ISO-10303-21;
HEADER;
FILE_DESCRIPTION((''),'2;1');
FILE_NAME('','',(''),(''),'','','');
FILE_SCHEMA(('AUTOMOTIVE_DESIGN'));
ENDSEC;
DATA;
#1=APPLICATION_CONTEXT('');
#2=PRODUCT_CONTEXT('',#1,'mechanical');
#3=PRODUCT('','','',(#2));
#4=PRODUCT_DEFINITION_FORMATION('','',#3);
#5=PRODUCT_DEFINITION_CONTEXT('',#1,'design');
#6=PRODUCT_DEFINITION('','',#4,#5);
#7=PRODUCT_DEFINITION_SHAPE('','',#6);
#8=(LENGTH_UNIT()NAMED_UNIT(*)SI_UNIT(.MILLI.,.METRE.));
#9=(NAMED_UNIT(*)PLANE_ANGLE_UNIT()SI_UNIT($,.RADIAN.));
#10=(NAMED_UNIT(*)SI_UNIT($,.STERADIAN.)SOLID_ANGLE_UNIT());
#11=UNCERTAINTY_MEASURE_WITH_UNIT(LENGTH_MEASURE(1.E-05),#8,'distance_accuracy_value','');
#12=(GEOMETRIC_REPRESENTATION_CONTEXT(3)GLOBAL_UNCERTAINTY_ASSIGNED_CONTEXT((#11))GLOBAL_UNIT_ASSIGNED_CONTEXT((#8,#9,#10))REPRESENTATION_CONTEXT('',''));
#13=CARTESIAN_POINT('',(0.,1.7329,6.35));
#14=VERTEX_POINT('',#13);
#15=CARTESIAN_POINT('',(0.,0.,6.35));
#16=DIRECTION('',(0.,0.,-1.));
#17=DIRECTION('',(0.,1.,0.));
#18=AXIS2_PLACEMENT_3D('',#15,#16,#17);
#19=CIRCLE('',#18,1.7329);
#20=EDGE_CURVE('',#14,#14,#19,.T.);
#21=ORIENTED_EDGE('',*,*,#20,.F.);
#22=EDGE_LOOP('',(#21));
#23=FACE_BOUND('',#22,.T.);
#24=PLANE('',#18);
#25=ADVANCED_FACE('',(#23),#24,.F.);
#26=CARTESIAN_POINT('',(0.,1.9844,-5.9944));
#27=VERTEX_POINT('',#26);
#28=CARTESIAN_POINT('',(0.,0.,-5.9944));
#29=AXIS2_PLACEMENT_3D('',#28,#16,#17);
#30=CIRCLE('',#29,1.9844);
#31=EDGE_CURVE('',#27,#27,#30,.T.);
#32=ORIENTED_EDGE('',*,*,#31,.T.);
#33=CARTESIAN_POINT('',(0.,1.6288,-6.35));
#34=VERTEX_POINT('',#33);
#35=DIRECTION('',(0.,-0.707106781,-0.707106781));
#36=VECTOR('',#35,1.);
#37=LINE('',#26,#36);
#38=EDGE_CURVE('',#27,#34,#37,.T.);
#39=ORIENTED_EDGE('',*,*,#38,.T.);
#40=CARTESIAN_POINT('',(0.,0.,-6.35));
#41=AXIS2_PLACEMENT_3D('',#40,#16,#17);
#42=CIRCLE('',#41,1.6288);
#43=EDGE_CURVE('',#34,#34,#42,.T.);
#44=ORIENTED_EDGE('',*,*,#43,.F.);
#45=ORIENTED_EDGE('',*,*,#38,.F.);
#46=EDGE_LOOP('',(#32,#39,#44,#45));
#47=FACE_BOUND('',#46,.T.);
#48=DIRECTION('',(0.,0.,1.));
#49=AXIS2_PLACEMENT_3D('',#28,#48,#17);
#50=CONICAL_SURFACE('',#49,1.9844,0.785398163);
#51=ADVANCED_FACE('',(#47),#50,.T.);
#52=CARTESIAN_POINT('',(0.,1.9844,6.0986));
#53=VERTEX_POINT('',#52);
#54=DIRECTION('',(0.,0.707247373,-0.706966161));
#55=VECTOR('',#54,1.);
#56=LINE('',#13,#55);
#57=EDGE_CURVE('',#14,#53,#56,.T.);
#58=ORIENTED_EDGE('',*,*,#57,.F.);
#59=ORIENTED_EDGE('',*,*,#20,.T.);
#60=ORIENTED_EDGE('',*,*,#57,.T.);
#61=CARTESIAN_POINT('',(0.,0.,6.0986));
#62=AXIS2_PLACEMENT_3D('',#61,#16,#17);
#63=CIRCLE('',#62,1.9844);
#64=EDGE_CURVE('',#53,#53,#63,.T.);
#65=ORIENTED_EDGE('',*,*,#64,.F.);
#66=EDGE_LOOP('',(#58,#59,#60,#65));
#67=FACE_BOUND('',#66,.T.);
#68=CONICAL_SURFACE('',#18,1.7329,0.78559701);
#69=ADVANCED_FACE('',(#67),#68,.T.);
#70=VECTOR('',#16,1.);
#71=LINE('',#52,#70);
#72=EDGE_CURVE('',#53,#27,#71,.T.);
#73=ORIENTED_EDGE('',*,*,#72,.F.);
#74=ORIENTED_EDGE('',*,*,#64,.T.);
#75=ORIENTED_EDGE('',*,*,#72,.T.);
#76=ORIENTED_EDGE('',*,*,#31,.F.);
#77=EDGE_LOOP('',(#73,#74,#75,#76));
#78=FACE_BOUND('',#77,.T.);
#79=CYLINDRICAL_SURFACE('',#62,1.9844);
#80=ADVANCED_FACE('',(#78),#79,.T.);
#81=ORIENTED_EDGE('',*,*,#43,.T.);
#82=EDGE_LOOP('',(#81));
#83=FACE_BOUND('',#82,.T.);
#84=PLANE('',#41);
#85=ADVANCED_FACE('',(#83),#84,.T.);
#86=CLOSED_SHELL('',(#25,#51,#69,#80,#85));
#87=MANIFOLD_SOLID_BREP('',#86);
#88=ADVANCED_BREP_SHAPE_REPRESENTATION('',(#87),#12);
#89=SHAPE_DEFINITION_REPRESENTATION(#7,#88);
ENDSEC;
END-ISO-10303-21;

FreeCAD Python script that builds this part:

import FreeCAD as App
import Part
import Sketcher
from FreeCAD import Vector
Q = App.Units.Quantity


def add_polygon(sketch, points):
    """Adds a closed chain of lines whose ends are joined by coincident constraints."""
    first, n = sketch.GeometryCount, len(points)
    for a, b in zip(points, points[1:] + points[:1]):
        sketch.addGeometry(Part.LineSegment(App.Vector(*a, 0), App.Vector(*b, 0)), False)
    for i in range(n):
        sketch.addConstraint(Sketcher.Constraint("Coincident", first + i, 2, first + (i + 1) % n, 1))

doc = App.newDocument("Part")
body = doc.addObject("PartDesign::Body", "Body")

# Sketch on YZ plane
sketch1 = body.newObject("Sketcher::SketchObject", "Sketch")
sketch1.AttachmentSupport = (doc.getObject("YZ_Plane"), [""])
sketch1.MapMode = "FlatFace"
add_polygon(sketch1, [(0, 6.35), (0, -6.35), (1.6288, -6.35), (1.9844, -5.9944), (1.9844, 6.0986), (1.7329, 6.35)])  # lines 0-5
sketch1.addConstraint([
    Sketcher.Constraint("Vertical", 0),
    Sketcher.Constraint("Horizontal", 1),
    Sketcher.Constraint("Vertical", 3),
    Sketcher.Constraint("Horizontal", 5),
    Sketcher.Constraint("Symmetric", 0, 2, 5, 2, -1, 1),
    Sketcher.Constraint("Perpendicular", 2, 4),
    Sketcher.Constraint("DistanceY", 0, 2, 0, 1, Q("0.5 in")),
    Sketcher.Constraint("Angle", 2, Q("45 deg")),
    Sketcher.Constraint("Distance", 4, Q("0.014 in")),
    Sketcher.Constraint("DistanceY", 3, 1, 3, 2, Q("0.4761 in")),
    Sketcher.Constraint("DistanceX", -1, 1, 2, 2, Q("0.078126 in")),
])
revolution = body.newObject("PartDesign::Revolution", "Revolution")
revolution.Profile = sketch1
revolution.ReferenceAxis = (sketch1, ["V_Axis"])
revolution.Angle = 360

doc.recompute()
